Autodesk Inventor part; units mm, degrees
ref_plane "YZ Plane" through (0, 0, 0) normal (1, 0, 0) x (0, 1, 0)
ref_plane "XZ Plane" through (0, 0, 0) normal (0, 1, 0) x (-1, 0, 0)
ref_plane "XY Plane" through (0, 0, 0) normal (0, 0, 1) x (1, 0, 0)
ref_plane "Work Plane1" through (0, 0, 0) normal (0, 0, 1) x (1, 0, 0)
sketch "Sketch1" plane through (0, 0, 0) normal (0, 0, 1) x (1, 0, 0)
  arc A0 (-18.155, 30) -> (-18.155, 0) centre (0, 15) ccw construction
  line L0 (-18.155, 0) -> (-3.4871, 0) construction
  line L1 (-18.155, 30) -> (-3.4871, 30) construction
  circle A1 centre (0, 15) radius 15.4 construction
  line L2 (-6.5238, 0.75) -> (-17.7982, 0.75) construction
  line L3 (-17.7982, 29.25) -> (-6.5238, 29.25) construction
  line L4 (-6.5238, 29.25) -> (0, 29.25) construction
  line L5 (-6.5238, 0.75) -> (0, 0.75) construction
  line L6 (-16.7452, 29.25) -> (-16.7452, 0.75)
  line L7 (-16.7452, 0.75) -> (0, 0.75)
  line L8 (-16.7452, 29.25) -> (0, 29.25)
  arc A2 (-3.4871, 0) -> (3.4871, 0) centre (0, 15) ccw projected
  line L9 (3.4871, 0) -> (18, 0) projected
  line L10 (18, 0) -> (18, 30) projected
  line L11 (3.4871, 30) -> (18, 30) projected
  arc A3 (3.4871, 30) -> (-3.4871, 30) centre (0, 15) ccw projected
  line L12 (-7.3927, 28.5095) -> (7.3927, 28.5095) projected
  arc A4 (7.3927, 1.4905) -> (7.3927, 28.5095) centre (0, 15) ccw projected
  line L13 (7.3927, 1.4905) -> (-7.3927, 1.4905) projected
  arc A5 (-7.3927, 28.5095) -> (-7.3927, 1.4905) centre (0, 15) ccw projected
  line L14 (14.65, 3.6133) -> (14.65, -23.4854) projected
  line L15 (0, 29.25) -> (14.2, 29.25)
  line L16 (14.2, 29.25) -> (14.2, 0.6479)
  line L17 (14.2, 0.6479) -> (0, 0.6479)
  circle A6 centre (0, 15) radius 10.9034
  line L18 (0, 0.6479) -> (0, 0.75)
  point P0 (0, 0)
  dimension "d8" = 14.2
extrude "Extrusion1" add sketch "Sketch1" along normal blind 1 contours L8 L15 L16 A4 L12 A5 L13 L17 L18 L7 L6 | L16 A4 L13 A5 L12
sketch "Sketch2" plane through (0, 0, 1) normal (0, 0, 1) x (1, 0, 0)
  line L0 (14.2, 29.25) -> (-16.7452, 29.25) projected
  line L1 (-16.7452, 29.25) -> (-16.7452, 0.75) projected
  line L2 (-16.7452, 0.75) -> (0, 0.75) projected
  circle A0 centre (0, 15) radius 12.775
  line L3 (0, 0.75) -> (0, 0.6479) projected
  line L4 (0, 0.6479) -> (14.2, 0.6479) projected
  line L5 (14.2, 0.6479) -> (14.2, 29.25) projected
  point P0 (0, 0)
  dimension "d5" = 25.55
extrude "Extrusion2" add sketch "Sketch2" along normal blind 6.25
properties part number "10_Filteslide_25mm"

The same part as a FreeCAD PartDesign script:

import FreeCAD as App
import Part
import Sketcher
from FreeCAD import Vector


def add_polygon(sketch, points):
    """Adds a closed chain of lines whose ends are joined by coincident constraints."""
    first, n = sketch.GeometryCount, len(points)
    for a, b in zip(points, points[1:] + points[:1]):
        sketch.addGeometry(Part.LineSegment(App.Vector(*a, 0), App.Vector(*b, 0)), False)
    for i in range(n):
        sketch.addConstraint(Sketcher.Constraint("Coincident", first + i, 2, first + (i + 1) % n, 1))

doc = App.newDocument("Part")
body = doc.addObject("PartDesign::Body", "Body")

# Sketch on XY plane
sketch1 = body.newObject("Sketcher::SketchObject", "Sketch")
sketch1.AttachmentSupport = (doc.getObject("XY_Plane"), [""])
sketch1.MapMode = "FlatFace"
add_polygon(sketch1, [(-16.75, 29.25), (-16.75, 0.75), (0, 0.75), (0, 0.65), (14.2, 0.65), (14.2, 29.25)])  # lines 0-5
sketch1.addGeometry(Part.Circle(Vector(0, 15, 0), Vector(0, 0, 1), 10.9), False)  # 6
sketch1.addConstraint(Sketcher.Constraint("Vertical", 0))
sketch1.addConstraint(Sketcher.Constraint("Horizontal", 1))
sketch1.addConstraint(Sketcher.Constraint("Vertical", 2))
sketch1.addConstraint(Sketcher.Constraint("Horizontal", 3))
sketch1.addConstraint(Sketcher.Constraint("Vertical", 4))
sketch1.addConstraint(Sketcher.Constraint("Horizontal", 5))
sketch1.addConstraint(Sketcher.Constraint("PointOnObject", 6, 3, -2))
sketch1.addConstraint(Sketcher.Constraint("PointOnObject", 1, 2, -2))
sketch1.addConstraint(Sketcher.Constraint("DistanceX", 3, 1, 3, 2, 14.2))
sketch1.addConstraint(Sketcher.Constraint("DistanceY", 0, 2, 0, 1, 28.5))
sketch1.addConstraint(Sketcher.Constraint("DistanceY", -1, 1, 6, 3, 15.0))
sketch1.addConstraint(Sketcher.Constraint("Diameter", 6, 21.8068))
sketch1.addConstraint(Sketcher.Constraint("DistanceY", 2, 2, 2, 1, 0.102))
sketch1.addConstraint(Sketcher.Constraint("DistanceY", -1, 1, 0, 2, 0.75))
sketch1.addConstraint(Sketcher.Constraint("DistanceX", 1, 1, 1, 2, 16.7452))
pad1 = body.newObject("PartDesign::Pad", "Pad")
pad1.Profile = sketch1
pad1.Length = 1

# Sketch on XY plane
sketch2 = body.newObject("Sketcher::SketchObject", "Sketch001")
sketch2.AttachmentSupport = (doc.getObject("XY_Plane"), [""])
sketch2.MapMode = "FlatFace"
sketch2.AttachmentOffset = App.Placement(Vector(0, 0, 1), App.Rotation())
add_polygon(sketch2, [(14.2, 0.65), (14.2, 29.25), (-16.75, 29.25), (-16.75, 0.75), (0, 0.75), (0, 0.65)])  # lines 0-5
sketch2.addGeometry(Part.Circle(Vector(0, 15, 0), Vector(0, 0, 1), 12.78), False)  # 6
sketch2.addConstraint(Sketcher.Constraint("Vertical", 0))
sketch2.addConstraint(Sketcher.Constraint("Horizontal", 1))
sketch2.addConstraint(Sketcher.Constraint("Vertical", 2))
sketch2.addConstraint(Sketcher.Constraint("Horizontal", 3))
sketch2.addConstraint(Sketcher.Constraint("Vertical", 4))
sketch2.addConstraint(Sketcher.Constraint("Horizontal", 5))
sketch2.addConstraint(Sketcher.Constraint("PointOnObject", 6, 3, -2))
sketch2.addConstraint(Sketcher.Constraint("PointOnObject", 3, 2, -2))
sketch2.addConstraint(Sketcher.Constraint("Diameter", 6, 25.55))
sketch2.addConstraint(Sketcher.Constraint("DistanceX", 5, 1, 5, 2, 14.2))
sketch2.addConstraint(Sketcher.Constraint("DistanceY", 2, 2, 2, 1, 28.5))
sketch2.addConstraint(Sketcher.Constraint("DistanceY", -1, 1, 6, 3, 15.0))
sketch2.addConstraint(Sketcher.Constraint("DistanceY", 0, 1, 0, 2, 28.602))
sketch2.addConstraint(Sketcher.Constraint("DistanceY", -1, 1, 0, 2, 29.25))
sketch2.addConstraint(Sketcher.Constraint("DistanceX", 1, 2, 1, 1, 30.9452))
pad2 = body.newObject("PartDesign::Pad", "Pad001")
pad2.Profile = sketch2
pad2.Length = 6.25

doc.recompute()
